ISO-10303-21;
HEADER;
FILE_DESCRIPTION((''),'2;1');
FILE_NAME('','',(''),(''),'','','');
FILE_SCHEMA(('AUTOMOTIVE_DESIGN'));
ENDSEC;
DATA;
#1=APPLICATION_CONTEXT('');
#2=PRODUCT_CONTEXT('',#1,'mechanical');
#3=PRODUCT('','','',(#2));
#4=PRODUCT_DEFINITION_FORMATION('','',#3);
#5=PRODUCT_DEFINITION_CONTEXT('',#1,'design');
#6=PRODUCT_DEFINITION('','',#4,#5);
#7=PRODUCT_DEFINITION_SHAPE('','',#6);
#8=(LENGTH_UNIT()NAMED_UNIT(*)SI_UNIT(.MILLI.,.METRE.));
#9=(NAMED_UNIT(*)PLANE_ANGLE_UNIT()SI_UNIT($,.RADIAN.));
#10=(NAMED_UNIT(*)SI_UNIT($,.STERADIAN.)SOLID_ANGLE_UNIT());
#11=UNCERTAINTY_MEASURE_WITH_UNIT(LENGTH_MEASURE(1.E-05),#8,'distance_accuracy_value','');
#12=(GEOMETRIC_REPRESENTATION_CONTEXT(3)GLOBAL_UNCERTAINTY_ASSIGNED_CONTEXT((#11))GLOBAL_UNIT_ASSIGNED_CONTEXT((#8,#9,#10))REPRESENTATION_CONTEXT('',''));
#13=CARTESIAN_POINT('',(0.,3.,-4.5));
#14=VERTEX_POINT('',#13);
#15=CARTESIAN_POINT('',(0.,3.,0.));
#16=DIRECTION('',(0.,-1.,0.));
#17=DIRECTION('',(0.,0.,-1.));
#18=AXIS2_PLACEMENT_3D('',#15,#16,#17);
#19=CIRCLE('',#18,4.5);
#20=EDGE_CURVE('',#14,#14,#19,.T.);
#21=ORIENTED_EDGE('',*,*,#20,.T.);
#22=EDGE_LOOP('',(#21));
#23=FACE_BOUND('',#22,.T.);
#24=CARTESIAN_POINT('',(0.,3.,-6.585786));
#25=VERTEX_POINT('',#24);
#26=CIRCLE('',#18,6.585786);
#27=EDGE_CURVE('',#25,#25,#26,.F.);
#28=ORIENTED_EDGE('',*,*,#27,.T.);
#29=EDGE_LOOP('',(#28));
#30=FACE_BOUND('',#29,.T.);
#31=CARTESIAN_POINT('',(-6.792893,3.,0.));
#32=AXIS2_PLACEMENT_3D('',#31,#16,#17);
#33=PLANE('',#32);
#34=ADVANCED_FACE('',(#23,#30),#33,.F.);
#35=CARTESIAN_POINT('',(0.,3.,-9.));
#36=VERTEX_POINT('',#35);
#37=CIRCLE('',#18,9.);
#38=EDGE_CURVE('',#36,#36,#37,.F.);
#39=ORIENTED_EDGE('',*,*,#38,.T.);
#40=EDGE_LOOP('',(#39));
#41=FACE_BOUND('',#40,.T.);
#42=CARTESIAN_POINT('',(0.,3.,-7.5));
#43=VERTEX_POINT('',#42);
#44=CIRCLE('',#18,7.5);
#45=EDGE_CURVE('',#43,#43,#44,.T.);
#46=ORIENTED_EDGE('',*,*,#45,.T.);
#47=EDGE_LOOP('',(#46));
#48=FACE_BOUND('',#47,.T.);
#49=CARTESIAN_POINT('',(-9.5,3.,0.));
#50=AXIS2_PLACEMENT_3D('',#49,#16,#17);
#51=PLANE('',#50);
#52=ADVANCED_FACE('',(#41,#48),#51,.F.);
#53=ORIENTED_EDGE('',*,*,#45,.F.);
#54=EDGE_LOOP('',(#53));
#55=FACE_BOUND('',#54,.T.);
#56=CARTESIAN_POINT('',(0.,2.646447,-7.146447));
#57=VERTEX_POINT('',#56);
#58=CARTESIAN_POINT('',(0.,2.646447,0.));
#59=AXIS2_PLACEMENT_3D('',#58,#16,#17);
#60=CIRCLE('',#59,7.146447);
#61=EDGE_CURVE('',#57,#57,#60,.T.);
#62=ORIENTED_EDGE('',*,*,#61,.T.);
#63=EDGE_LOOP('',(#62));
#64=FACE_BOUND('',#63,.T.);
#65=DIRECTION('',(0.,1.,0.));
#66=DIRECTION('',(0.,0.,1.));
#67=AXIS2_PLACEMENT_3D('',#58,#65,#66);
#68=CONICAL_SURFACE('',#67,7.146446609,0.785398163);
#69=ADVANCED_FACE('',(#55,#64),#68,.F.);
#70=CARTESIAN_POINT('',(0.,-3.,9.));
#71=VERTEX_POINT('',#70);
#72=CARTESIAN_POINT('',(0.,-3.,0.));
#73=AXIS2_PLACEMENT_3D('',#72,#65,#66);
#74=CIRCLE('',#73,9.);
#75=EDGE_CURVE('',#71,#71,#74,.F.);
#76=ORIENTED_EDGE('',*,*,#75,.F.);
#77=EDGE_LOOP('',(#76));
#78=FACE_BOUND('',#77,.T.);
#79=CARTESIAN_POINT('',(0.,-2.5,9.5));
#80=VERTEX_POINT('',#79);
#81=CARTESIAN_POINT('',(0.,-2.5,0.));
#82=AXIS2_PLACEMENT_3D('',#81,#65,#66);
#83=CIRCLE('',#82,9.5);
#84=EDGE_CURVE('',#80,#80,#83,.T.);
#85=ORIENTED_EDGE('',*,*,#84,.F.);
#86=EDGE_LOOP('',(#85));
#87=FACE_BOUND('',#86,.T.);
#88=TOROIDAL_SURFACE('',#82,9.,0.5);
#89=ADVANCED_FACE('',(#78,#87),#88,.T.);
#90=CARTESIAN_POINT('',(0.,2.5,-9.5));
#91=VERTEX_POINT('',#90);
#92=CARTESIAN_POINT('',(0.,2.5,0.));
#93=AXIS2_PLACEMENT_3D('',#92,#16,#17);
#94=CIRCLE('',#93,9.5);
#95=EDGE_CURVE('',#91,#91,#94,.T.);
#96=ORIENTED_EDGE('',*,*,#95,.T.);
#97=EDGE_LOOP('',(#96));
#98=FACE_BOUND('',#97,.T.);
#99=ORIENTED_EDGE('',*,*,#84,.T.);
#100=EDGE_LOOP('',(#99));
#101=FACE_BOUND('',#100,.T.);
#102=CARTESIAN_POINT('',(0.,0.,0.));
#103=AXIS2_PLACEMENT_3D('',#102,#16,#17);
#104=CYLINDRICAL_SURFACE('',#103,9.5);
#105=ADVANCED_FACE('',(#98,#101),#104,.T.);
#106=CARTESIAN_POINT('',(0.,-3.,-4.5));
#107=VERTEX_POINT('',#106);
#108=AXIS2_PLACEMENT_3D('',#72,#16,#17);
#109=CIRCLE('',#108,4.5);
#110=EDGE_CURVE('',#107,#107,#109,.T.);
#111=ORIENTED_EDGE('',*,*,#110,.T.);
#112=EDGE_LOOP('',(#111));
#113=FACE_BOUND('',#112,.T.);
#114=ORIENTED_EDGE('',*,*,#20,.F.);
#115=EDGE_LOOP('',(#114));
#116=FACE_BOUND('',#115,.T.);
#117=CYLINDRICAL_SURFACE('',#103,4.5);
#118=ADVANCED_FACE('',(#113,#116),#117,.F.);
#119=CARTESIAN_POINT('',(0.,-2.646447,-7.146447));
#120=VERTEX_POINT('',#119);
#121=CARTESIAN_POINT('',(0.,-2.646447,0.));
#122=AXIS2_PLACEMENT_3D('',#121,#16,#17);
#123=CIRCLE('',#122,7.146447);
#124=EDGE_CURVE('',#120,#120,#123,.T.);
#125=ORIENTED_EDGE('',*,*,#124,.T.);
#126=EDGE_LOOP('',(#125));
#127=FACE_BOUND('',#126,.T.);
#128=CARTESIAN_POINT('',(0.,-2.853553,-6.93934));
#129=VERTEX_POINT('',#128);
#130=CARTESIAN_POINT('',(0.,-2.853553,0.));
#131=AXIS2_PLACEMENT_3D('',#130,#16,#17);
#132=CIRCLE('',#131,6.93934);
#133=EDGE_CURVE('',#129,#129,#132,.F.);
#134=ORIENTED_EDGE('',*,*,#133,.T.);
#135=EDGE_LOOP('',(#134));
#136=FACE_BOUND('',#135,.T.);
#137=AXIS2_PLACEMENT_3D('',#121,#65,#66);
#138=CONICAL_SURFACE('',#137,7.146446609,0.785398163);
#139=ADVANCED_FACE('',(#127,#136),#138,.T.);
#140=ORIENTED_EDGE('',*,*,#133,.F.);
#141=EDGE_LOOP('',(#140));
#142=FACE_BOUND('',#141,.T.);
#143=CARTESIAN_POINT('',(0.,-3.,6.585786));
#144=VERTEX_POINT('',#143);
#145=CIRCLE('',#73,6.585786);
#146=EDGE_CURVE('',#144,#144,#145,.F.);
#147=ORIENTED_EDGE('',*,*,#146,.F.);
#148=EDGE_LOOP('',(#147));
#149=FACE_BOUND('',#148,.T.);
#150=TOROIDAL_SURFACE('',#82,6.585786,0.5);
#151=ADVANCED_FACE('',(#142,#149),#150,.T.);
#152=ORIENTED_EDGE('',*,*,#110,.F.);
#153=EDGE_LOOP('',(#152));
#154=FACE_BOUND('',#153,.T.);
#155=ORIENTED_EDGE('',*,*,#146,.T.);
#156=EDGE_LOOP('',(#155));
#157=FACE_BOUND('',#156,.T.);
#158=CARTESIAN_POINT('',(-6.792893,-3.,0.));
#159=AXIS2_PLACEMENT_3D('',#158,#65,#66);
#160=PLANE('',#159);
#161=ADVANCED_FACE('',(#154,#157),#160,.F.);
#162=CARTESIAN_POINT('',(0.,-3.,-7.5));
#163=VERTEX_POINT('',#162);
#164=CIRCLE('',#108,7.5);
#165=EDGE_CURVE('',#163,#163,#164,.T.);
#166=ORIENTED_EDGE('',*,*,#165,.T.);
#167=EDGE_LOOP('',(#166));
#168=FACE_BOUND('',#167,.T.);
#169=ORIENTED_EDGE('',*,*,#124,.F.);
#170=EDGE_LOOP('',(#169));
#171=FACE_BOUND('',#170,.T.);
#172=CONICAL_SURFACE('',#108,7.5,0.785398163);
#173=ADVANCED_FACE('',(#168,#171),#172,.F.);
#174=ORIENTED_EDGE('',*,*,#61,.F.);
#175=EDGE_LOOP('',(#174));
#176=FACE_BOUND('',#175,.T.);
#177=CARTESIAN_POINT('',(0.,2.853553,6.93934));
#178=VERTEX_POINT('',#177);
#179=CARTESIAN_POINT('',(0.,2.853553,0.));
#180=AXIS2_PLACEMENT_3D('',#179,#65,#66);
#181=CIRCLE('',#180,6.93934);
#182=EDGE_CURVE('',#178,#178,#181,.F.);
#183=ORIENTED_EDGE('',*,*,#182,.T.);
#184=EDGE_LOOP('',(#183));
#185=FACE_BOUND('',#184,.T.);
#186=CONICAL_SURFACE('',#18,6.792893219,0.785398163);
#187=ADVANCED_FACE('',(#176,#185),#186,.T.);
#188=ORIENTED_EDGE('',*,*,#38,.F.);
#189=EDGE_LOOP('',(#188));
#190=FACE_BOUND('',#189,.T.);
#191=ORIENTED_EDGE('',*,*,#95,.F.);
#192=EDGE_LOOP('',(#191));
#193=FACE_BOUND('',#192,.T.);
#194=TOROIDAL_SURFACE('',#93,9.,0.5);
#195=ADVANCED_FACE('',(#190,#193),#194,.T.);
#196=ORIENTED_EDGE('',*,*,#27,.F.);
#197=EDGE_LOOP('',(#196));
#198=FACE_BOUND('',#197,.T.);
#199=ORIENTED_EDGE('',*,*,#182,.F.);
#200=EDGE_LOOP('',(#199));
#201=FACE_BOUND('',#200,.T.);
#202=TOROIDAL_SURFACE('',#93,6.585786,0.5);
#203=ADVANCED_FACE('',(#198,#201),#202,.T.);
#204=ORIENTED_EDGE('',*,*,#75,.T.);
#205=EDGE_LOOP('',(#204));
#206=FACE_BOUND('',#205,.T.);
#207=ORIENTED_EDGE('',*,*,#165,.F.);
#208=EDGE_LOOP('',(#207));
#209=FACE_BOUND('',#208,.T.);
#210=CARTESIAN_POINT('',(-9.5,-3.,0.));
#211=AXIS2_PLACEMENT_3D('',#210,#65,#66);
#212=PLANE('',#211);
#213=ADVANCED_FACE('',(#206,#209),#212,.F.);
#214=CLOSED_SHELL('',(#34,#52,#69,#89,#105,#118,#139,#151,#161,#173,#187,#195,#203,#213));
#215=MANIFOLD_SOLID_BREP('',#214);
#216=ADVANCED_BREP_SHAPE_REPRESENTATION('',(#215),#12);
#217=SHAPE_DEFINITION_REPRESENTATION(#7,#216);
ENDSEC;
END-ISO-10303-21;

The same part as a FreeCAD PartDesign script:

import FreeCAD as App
import Part
import Sketcher
Q = App.Units.Quantity


def edges_at(feature, points):
    """Names of the edges that pass closest to the given points."""
    edges = feature.Shape.Edges
    near = lambda p: min(range(len(edges)), key=lambda i: edges[i].distToShape(Part.Vertex(*p))[0])
    return sorted({f"Edge{near(p) + 1}" for p in points})

doc = App.newDocument("Part")
body = doc.addObject("PartDesign::Body", "Body")

# Sketch on XY plane
sketch1 = doc.addObject("Sketcher::SketchObject", "Sketch")
body.addObject(sketch1)
sketch1.AttachmentSupport = (doc.XY_Plane, [""])
sketch1.MapMode = "FlatFace"
sketch1.addGeometry([
    Part.LineSegment(App.Vector(-9.5, 3, 0), App.Vector(-9.5, -3, 0)),  # 0
    Part.LineSegment(App.Vector(-9.5, -3, 0), App.Vector(-7.5, -3, 0)),  # 1
    Part.LineSegment(App.Vector(-7.5, -3, 0), App.Vector(-7.15, -2.65, 0)),  # 2
    Part.LineSegment(App.Vector(-7.15, -2.65, 0), App.Vector(-6.79, -3, 0)),  # 3
    Part.LineSegment(App.Vector(-6.79, -3, 0), App.Vector(-4.5, -3, 0)),  # 4
    Part.LineSegment(App.Vector(-4.5, -3, 0), App.Vector(-4.5, 3, 0)),  # 5
    Part.LineSegment(App.Vector(-4.5, 3, 0), App.Vector(-6.79, 3, 0)),  # 6
    Part.LineSegment(App.Vector(-6.79, 3, 0), App.Vector(-7.15, 2.65, 0)),  # 7
    Part.LineSegment(App.Vector(-7.15, 2.65, 0), App.Vector(-7.5, 3, 0)),  # 8
    Part.LineSegment(App.Vector(-7.5, 3, 0), App.Vector(-9.5, 3, 0)),  # 9
], False)
sketch1.addConstraint([
    Sketcher.Constraint("Coincident", 0, 2, 1, 1),
    Sketcher.Constraint("Coincident", 1, 2, 2, 1),
    Sketcher.Constraint("Coincident", 2, 2, 3, 1),
    Sketcher.Constraint("Coincident", 3, 2, 4, 1),
    Sketcher.Constraint("Coincident", 4, 2, 5, 1),
    Sketcher.Constraint("Coincident", 5, 2, 6, 1),
    Sketcher.Constraint("Coincident", 6, 2, 7, 1),
    Sketcher.Constraint("Coincident", 7, 2, 8, 1),
    Sketcher.Constraint("Coincident", 8, 2, 9, 1),
    Sketcher.Constraint("Coincident", 9, 2, 0, 1),
    Sketcher.Constraint("Vertical", 0),
    Sketcher.Constraint("Horizontal", 1),
    Sketcher.Constraint("Horizontal", 4),
    Sketcher.Constraint("Vertical", 5),
    Sketcher.Constraint("Horizontal", 6),
    Sketcher.Constraint("Horizontal", 9),
    Sketcher.Constraint("Symmetric", 3, 2, 6, 2, -1),
    Sketcher.Constraint("Symmetric", 2, 2, 7, 2, -1),
    Sketcher.Constraint("Symmetric", 1, 2, 8, 2, -1),
    Sketcher.Constraint("Perpendicular", 2, 3),
    Sketcher.Constraint("Perpendicular", 3, 7),
    Sketcher.Constraint("Horizontal", 1, 2, 3, 2),
    Sketcher.Constraint("DistanceX", 1, 1, 1, 2, Q("2 mm")),
    Sketcher.Constraint("DistanceY", 0, 2, 0, 1, Q("6 mm")),
    Sketcher.Constraint("DistanceX", 1, 2, 4, 2, Q("3 mm")),
    Sketcher.Constraint("Distance", 2, Q("0.5 mm")),
    Sketcher.Constraint("DistanceX", 0, 2, -1, 1, Q("9.5 mm")),
])
revolution = doc.addObject("PartDesign::Revolution", "Revolution")
body.addObject(revolution)
revolution.Profile = sketch1
revolution.ReferenceAxis = (sketch1, ["V_Axis"])
revolution.Angle = 360
doc.recompute()

fillet = doc.addObject("PartDesign::Fillet", "Fillet")
body.addObject(fillet)
fillet.Base = (revolution, edges_at(revolution, [(0, 3, 6.793), (0, -3, 6.793)]))
fillet.Radius = 0.5
doc.recompute()

fillet2 = doc.addObject("PartDesign::Fillet", "Fillet001")
body.addObject(fillet2)
fillet2.Base = (fillet, edges_at(fillet, [(0, 3, 9.5), (0, -3, 9.5)]))
fillet2.Radius = 0.5

doc.recompute()
